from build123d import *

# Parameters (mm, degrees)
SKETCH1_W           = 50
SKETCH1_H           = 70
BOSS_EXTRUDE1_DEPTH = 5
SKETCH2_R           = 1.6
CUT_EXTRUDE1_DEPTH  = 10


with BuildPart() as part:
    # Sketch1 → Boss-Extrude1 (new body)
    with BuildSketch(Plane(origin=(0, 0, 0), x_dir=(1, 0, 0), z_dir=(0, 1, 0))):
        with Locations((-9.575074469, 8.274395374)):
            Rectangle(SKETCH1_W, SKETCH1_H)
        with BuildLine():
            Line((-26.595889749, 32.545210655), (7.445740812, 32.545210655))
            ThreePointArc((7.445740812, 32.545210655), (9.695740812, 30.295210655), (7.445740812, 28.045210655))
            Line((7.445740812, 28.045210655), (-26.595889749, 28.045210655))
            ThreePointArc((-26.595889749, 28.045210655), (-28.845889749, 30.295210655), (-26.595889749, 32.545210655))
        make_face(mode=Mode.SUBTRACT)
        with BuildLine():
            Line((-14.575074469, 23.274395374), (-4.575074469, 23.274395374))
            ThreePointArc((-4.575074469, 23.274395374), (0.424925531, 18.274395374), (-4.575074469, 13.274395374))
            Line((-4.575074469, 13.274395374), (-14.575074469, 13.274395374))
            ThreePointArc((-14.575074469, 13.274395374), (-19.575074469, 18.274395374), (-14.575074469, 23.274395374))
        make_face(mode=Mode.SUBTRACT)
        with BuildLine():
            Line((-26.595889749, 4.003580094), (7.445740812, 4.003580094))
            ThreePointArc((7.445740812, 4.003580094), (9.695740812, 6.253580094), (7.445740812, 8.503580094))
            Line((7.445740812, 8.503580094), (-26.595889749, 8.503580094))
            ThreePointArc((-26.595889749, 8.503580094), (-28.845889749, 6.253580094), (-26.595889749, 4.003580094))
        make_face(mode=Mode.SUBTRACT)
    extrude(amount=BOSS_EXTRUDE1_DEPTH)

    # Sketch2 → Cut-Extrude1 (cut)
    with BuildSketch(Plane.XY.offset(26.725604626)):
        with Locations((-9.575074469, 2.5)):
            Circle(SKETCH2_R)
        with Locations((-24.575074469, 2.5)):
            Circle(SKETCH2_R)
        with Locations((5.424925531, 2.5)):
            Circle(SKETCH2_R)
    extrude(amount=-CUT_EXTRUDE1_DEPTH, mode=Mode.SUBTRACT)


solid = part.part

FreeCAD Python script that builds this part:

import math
import FreeCAD as App
import Part
import Sketcher

V = App.Vector

doc = App.newDocument("Part")
body = doc.addObject("PartDesign::Body", "Body")

sketch1 = body.newObject("Sketcher::SketchObject", "Sketch")
sketch1.AttachmentSupport = (doc.getObject("XZ_Plane"), [""])
sketch1.MapMode = "FlatFace"
sketch1.addGeometry([
    Part.LineSegment(V(-34.6, -43.3, 0), V(-34.6, 26.7, 0)),
    Part.LineSegment(V(-34.6, 26.7, 0), V(15.4, 26.7, 0)),
    Part.LineSegment(V(15.4, 26.7, 0), V(15.4, -43.3, 0)),
    Part.LineSegment(V(15.4, -43.3, 0), V(-34.6, -43.3, 0)),
    Part.ArcOfCircle(Part.Circle(V(-14.6, -18.3, 0), V(0, 0, 1), 5), math.radians(90), math.radians(270)),
    Part.LineSegment(V(-14.6, -23.3, 0), V(-4.6, -23.3, 0)),
    Part.ArcOfCircle(Part.Circle(V(-4.6, -18.3, 0), V(0, 0, 1), 5), math.radians(-90), math.radians(90)),
    Part.LineSegment(V(-4.6, -13.3, 0), V(-14.6, -13.3, 0)),
    Part.LineSegment(V(7.4, -4, 0), V(-26.6, -4, 0)),
    Part.ArcOfCircle(Part.Circle(V(-26.6, -6.3, 0), V(0, 0, 1), 2.2), math.radians(90), math.radians(270)),
    Part.LineSegment(V(-26.6, -8.5, 0), V(7.4, -8.5, 0)),
    Part.ArcOfCircle(Part.Circle(V(7.4, -6.3, 0), V(0, 0, 1), 2.2), math.radians(-90), math.radians(90)),
    Part.ArcOfCircle(Part.Circle(V(-26.6, -30.3, 0), V(0, 0, 1), 2.2), math.radians(90), math.radians(270)),
    Part.LineSegment(V(-26.6, -32.5, 0), V(7.4, -32.5, 0)),
    Part.ArcOfCircle(Part.Circle(V(7.4, -30.3, 0), V(0, 0, 1), 2.2), math.radians(-90), math.radians(90)),
    Part.LineSegment(V(7.4, -28, 0), V(-26.6, -28, 0)),
], False)
sketch1.addConstraint([
    Sketcher.Constraint("Coincident", 0, 2, 1, 1),
    Sketcher.Constraint("Coincident", 1, 2, 2, 1),
    Sketcher.Constraint("Coincident", 2, 2, 3, 1),
    Sketcher.Constraint("Coincident", 3, 2, 0, 1),
    Sketcher.Constraint("Tangent", 4, 2, 5, 1),
    Sketcher.Constraint("Tangent", 5, 2, 6, 1),
    Sketcher.Constraint("Tangent", 6, 2, 7, 1),
    Sketcher.Constraint("Tangent", 7, 2, 4, 1),
    Sketcher.Constraint("Tangent", 8, 2, 9, 1),
    Sketcher.Constraint("Tangent", 9, 2, 10, 1),
    Sketcher.Constraint("Tangent", 10, 2, 11, 1),
    Sketcher.Constraint("Tangent", 11, 2, 8, 1),
    Sketcher.Constraint("Tangent", 12, 2, 13, 1),
    Sketcher.Constraint("Tangent", 13, 2, 14, 1),
    Sketcher.Constraint("Tangent", 14, 2, 15, 1),
    Sketcher.Constraint("Tangent", 15, 2, 12, 1),
    Sketcher.Constraint("Vertical", 0),
    Sketcher.Constraint("Horizontal", 1),
    Sketcher.Constraint("Vertical", 2),
    Sketcher.Constraint("Horizontal", 3),
    Sketcher.Constraint("Horizontal", 5),
    Sketcher.Constraint("Horizontal", 7),
    Sketcher.Constraint("Horizontal", 8),
    Sketcher.Constraint("Horizontal", 10),
    Sketcher.Constraint("Horizontal", 13),
    Sketcher.Constraint("Horizontal", 15),
    Sketcher.Constraint("Equal", 11, 12),
    Sketcher.Constraint("Vertical", 9, 3, 12, 3),
    Sketcher.Constraint("Vertical", 11, 3, 14, 3),
    Sketcher.Constraint("Radius", 4, 5.0),
    Sketcher.Constraint("DistanceX", 1, 1, 1, 2, 50.0),
    Sketcher.Constraint("DistanceX", 5, 1, 5, 2, 10.0),
    Sketcher.Constraint("DistanceY", 0, 1, 0, 2, 70.0),
    Sketcher.Constraint("Radius", 9, 2.25),
    Sketcher.Constraint("DistanceX", 0, 2, 4, 3, 20.0),
    Sketcher.Constraint("DistanceY", 4, 3, 0, 2, 45.0),
    Sketcher.Constraint("DistanceX", 8, 2, 8, 1, 34.041631),
    Sketcher.Constraint("DistanceX", 9, 3, -1, 1, 26.59589),
    Sketcher.Constraint("DistanceY", 9, 3, -1, 1, 6.25358),
    Sketcher.Constraint("DistanceY", 12, 3, -1, 1, 30.295211),
    Sketcher.Constraint("DistanceX", 4, 3, -1, 1, 14.575074),
    Sketcher.Constraint("DistanceY", 4, 3, -1, 1, 18.274395),
])
pad1 = body.newObject("PartDesign::Pad", "Pad")
pad1.Profile = sketch1
pad1.Length = 5
pad1.Reversed = True

sketch2 = body.newObject("Sketcher::SketchObject", "Sketch001")
sketch2.AttachmentSupport = (doc.getObject("XY_Plane"), [""])
sketch2.MapMode = "FlatFace"
sketch2.AttachmentOffset = App.Placement(V(0, 0, 26.725605), App.Rotation())
sketch2.addGeometry([
    Part.Circle(V(-9.6, 2.5, 0), V(0, 0, 1), 1.6),
    Part.Circle(V(-24.6, 2.5, 0), V(0, 0, 1), 1.6),
    Part.Circle(V(5.4, 2.5, 0), V(0, 0, 1), 1.6),
], False)
sketch2.addConstraint([
    Sketcher.Constraint("Equal", 0, 1),
    Sketcher.Constraint("Equal", 1, 2),
    Sketcher.Constraint("Horizontal", 0, 3, 1, 3),
    Sketcher.Constraint("Horizontal", 1, 3, 2, 3),
    Sketcher.Constraint("Diameter", 0, 3.2),
    Sketcher.Constraint("DistanceX", 1, 3, 0, 3, 15.0),
    Sketcher.Constraint("DistanceX", 0, 3, 2, 3, 15.0),
    Sketcher.Constraint("DistanceY", -1, 1, 0, 3, 2.5),
    Sketcher.Constraint("DistanceX", 0, 3, -1, 1, 9.575074),
])
pocket1 = body.newObject("PartDesign::Pocket", "Pocket")
pocket1.Profile = sketch2
pocket1.Length = 10

doc.recompute()
